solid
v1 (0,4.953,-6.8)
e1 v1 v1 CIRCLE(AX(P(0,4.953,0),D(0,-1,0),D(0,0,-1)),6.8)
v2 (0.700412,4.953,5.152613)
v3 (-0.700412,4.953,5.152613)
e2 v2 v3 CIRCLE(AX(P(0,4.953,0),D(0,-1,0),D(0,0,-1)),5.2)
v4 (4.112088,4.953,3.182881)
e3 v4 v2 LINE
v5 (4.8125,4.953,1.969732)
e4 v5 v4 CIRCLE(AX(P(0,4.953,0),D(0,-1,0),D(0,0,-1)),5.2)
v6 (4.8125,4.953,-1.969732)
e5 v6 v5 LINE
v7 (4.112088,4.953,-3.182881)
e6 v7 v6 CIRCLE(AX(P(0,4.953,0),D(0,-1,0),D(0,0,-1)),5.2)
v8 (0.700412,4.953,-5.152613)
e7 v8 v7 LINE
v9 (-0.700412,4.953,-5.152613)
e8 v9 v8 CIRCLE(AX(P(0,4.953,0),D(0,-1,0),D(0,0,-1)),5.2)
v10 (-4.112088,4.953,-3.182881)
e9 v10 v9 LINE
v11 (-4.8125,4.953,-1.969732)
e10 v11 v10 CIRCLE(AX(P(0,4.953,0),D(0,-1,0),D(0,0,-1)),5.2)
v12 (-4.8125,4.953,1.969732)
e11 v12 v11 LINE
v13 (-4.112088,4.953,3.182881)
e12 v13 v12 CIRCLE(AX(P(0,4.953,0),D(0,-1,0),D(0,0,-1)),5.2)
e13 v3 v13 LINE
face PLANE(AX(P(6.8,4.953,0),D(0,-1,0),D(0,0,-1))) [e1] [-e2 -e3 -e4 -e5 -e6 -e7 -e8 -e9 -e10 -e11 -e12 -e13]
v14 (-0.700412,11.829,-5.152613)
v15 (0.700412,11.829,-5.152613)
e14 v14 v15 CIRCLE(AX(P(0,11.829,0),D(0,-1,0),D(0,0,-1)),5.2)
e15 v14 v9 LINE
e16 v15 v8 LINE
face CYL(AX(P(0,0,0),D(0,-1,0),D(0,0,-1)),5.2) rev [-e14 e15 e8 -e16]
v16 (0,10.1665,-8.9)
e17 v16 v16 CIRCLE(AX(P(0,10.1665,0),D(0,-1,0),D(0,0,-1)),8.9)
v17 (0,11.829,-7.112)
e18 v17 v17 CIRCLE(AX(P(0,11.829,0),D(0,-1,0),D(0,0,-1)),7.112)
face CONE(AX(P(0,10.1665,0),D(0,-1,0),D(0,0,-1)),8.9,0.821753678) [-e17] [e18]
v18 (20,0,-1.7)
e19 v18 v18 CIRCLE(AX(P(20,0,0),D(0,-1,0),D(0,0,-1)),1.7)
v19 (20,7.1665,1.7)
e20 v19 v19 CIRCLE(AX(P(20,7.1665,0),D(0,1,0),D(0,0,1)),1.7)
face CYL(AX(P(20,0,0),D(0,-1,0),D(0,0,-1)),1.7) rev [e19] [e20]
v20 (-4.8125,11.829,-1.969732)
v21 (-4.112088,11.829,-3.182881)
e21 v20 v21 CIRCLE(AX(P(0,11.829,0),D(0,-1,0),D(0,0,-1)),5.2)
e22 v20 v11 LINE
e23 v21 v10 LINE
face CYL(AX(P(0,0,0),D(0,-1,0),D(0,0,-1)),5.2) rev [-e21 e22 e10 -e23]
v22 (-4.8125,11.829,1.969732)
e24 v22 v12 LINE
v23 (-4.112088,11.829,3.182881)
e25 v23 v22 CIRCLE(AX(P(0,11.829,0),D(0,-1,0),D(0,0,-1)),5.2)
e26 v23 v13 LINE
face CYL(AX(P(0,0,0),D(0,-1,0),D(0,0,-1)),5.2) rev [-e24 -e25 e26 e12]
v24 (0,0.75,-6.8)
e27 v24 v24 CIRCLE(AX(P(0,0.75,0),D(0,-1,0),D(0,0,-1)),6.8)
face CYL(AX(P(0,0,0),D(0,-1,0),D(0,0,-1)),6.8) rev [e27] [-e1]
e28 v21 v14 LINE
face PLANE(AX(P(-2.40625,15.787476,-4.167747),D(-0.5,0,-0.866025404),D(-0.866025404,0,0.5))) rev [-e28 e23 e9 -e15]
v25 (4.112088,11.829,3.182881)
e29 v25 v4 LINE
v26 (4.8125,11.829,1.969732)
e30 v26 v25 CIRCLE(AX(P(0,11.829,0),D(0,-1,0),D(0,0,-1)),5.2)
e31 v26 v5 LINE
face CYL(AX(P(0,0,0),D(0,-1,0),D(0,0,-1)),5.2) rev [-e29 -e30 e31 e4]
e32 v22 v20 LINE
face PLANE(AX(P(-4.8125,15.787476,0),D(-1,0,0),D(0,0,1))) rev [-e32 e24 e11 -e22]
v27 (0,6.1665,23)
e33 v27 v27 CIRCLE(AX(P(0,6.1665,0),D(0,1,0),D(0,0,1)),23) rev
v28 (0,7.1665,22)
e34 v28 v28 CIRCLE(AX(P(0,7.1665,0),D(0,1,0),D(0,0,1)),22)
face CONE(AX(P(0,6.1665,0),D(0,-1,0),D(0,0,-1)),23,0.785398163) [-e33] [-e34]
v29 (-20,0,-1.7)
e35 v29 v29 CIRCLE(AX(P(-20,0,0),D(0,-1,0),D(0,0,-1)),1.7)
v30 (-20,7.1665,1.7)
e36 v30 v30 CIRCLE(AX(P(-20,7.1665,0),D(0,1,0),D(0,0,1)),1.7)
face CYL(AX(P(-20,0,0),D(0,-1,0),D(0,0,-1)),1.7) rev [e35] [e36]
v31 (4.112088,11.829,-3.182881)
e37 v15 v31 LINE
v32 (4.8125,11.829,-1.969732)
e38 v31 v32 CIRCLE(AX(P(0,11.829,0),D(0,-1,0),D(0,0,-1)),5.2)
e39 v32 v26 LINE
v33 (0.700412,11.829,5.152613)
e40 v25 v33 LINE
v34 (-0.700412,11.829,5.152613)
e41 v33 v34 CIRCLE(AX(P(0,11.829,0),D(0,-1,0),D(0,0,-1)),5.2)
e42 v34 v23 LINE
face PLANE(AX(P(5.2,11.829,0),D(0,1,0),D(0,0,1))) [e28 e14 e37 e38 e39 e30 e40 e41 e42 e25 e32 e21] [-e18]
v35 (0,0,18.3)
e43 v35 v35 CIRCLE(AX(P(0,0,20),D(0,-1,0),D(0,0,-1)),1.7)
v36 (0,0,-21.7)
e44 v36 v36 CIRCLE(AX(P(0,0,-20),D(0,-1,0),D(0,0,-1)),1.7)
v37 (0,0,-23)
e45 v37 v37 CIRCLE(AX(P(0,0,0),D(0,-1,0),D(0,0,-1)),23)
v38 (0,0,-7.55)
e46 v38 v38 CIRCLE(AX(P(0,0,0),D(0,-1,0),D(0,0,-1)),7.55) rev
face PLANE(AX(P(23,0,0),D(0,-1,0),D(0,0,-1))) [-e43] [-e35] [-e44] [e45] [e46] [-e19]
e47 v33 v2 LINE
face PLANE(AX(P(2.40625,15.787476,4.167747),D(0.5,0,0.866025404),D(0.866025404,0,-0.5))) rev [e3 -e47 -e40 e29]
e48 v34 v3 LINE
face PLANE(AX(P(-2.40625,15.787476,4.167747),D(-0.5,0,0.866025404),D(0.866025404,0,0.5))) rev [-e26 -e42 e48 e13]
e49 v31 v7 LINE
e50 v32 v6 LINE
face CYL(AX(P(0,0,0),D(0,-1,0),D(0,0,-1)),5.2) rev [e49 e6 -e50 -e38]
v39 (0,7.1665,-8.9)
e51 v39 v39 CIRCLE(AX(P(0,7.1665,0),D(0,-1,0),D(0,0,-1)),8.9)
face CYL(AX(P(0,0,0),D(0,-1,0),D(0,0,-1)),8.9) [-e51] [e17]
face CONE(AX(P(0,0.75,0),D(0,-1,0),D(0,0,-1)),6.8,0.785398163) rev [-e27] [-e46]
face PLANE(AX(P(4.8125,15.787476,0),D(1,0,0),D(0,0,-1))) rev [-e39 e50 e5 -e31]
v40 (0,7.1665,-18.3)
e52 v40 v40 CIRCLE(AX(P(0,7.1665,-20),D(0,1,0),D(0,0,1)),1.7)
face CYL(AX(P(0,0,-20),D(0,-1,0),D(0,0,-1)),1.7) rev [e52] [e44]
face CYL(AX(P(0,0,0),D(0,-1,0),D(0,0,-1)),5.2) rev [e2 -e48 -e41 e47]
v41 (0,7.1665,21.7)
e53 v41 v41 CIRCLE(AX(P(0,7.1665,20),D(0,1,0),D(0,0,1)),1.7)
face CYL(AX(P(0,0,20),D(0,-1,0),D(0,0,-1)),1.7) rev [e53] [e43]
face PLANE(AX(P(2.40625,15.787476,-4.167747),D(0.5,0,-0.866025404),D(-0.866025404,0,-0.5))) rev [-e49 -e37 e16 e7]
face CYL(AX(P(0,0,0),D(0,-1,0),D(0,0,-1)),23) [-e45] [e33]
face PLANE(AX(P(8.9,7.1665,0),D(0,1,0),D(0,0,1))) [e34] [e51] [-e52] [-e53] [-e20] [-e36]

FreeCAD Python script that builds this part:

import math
import FreeCAD as App
import Part
import Sketcher
Q = App.Units.Quantity


def edges_at(feature, points):
    """Names of the edges that pass closest to the given points."""
    edges = feature.Shape.Edges
    near = lambda p: min(range(len(edges)), key=lambda i: edges[i].distToShape(Part.Vertex(*p))[0])
    return sorted({f"Edge{near(p) + 1}" for p in points})

doc = App.newDocument("Part")
body = doc.addObject("PartDesign::Body", "Body")

# Sketch on XY plane
sketch1 = doc.addObject("Sketcher::SketchObject", "Sketch")
body.addObject(sketch1)
sketch1.AttachmentSupport = (doc.XY_Plane, [""])
sketch1.MapMode = "FlatFace"
sketch1.addGeometry([
    Part.LineSegment(App.Vector(6.8, 4.953, 0), App.Vector(6.8, 0, 0)),  # 0
    Part.LineSegment(App.Vector(6.8, 0, 0), App.Vector(23, 0, 0)),  # 1
    Part.LineSegment(App.Vector(23, 0, 0), App.Vector(23, 7.1665, 0)),  # 2
    Part.LineSegment(App.Vector(23, 7.1665, 0), App.Vector(8.9, 7.1665, 0)),  # 3
    Part.LineSegment(App.Vector(8.9, 7.1665, 0), App.Vector(8.9, 10.1665, 0)),  # 4
    Part.LineSegment(App.Vector(8.9, 10.1665, 0), App.Vector(7.112, 11.829, 0)),  # 5
    Part.LineSegment(App.Vector(7.112, 11.829, 0), App.Vector(5.2, 11.829, 0)),  # 6
    Part.LineSegment(App.Vector(5.2, 11.829, 0), App.Vector(5.2, 4.953, 0)),  # 7
    Part.LineSegment(App.Vector(5.2, 4.953, 0), App.Vector(6.8, 4.953, 0)),  # 8
], False)
sketch1.addConstraint([
    Sketcher.Constraint("Coincident", 0, 2, 1, 1),
    Sketcher.Constraint("Coincident", 1, 2, 2, 1),
    Sketcher.Constraint("Coincident", 2, 2, 3, 1),
    Sketcher.Constraint("Coincident", 3, 2, 4, 1),
    Sketcher.Constraint("Coincident", 4, 2, 5, 1),
    Sketcher.Constraint("Coincident", 5, 2, 6, 1),
    Sketcher.Constraint("Coincident", 6, 2, 7, 1),
    Sketcher.Constraint("Coincident", 7, 2, 8, 1),
    Sketcher.Constraint("Coincident", 8, 2, 0, 1),
    Sketcher.Constraint("Vertical", 0),
    Sketcher.Constraint("Horizontal", 1),
    Sketcher.Constraint("Vertical", 2),
    Sketcher.Constraint("Horizontal", 3),
    Sketcher.Constraint("Vertical", 4),
    Sketcher.Constraint("Horizontal", 6),
    Sketcher.Constraint("Vertical", 7),
    Sketcher.Constraint("Horizontal", 8),
    Sketcher.Constraint("PointOnObject", 0, 2, -1),
    Sketcher.Constraint("DistanceY", 4, 1, 4, 2, Q("3 mm")),
    Sketcher.Constraint("DistanceX", 1, 1, 1, 2, Q("16.2 mm")),
    Sketcher.Constraint("DistanceX", 3, 2, 3, 1, Q("14.1 mm")),
    Sketcher.Constraint("DistanceX", 8, 1, 8, 2, Q("1.6 mm")),
    Sketcher.Constraint("DistanceX", -1, 1, 1, 2, Q("23 mm")),
    Sketcher.Constraint("DistanceX", 6, 2, 6, 1, Q("1.912 mm")),
    Sketcher.Constraint("DistanceY", 0, 2, 0, 1, Q("4.953 mm")),
    Sketcher.Constraint("DistanceY", 7, 2, 7, 1, Q("6.876 mm")),
    Sketcher.Constraint("DistanceY", 2, 1, 2, 2, Q("7.1665 mm")),
])
revolution = doc.addObject("PartDesign::Revolution", "Revolution")
body.addObject(revolution)
revolution.Profile = sketch1
revolution.ReferenceAxis = (sketch1, ["V_Axis"])
revolution.Angle = 360

# Sketch on XZ plane
sketch2 = doc.addObject("Sketcher::SketchObject", "Sketch001")
body.addObject(sketch2)
sketch2.AttachmentSupport = (doc.XZ_Plane, [""])
sketch2.MapMode = "FlatFace"
sketch2.addGeometry(Part.Circle(App.Vector(-20, 0, 0), App.Vector(0, 0, 1), 1.7), False)
sketch2.addConstraint([
    Sketcher.Constraint("PointOnObject", 0, 3, -1),
    Sketcher.Constraint("Diameter", 0, Q("3.4 mm")),
    Sketcher.Constraint("DistanceX", 0, 3, -1, 1, Q("20 mm")),
])
doc.recompute()
hole = doc.addObject("PartDesign::Hole", "Hole")
body.addObject(hole)
hole.Profile = sketch2
hole.ThreadType = "None"
hole.Diameter = 3.4
hole.DepthType = "ThroughAll"
doc.recompute()

polarpattern = doc.addObject("PartDesign::PolarPattern", "PolarPattern")
body.addObject(polarpattern)
polarpattern.Originals = [hole]
polarpattern.Axis = (doc.Y_Axis, [""])
polarpattern.Angle = 360
polarpattern.Occurrences = 4
body.Tip = polarpattern

# Sketch on XZ plane
sketch3 = doc.addObject("Sketcher::SketchObject", "Sketch002")
body.addObject(sketch3)
sketch3.AttachmentSupport = (doc.XZ_Plane, [""])
sketch3.MapMode = "FlatFace"
sketch3.AttachmentOffset = App.Placement(App.Vector(0, 0, -11.829), App.Rotation())
sketch3.addGeometry([
    Part.LineSegment(App.Vector(0.700412, 5.152613, 0), App.Vector(4.112088, 3.182881, 0)),  # 0
    Part.ArcOfCircle(Part.Circle(App.Vector(0, 0, 0), App.Vector(0, 0, 1), 5.2), math.radians(37.740963), math.radians(82.259037)),  # 1
    Part.ArcOfCircle(Part.Circle(App.Vector(0, 0, 0), App.Vector(0, 0, 1), 5.2), math.radians(-22.259037), math.radians(22.259037)),  # 2
    Part.LineSegment(App.Vector(4.8125, 1.969732, 0), App.Vector(4.8125, -1.969732, 0)),  # 3
    Part.LineSegment(App.Vector(-4.112088, 3.182881, 0), App.Vector(-0.700412, 5.152613, 0)),  # 4
    Part.ArcOfCircle(Part.Circle(App.Vector(0, 0, 0), App.Vector(0, 0, 1), 5.2), math.radians(97.740963), math.radians(142.259037)),  # 5
    Part.ArcOfCircle(Part.Circle(App.Vector(0, 0, 0), App.Vector(0, 0, 1), 5.2), math.radians(-82.259037), math.radians(-37.740963)),  # 6
    Part.LineSegment(App.Vector(4.112088, -3.182881, 0), App.Vector(0.700412, -5.152613, 0)),  # 7
    Part.LineSegment(App.Vector(-4.8125, -1.969732, 0), App.Vector(-4.8125, 1.969732, 0)),  # 8
    Part.ArcOfCircle(Part.Circle(App.Vector(0, 0, 0), App.Vector(0, 0, 1), 5.2), math.radians(157.740963), math.radians(202.259037)),  # 9
    Part.ArcOfCircle(Part.Circle(App.Vector(0, 0, 0), App.Vector(0, 0, 1), 5.2), math.radians(-142.259037), math.radians(-97.740963)),  # 10
    Part.LineSegment(App.Vector(-0.700412, -5.152613, 0), App.Vector(-4.112088, -3.182881, 0)),  # 11
], False)
sketch3.addConstraint([
    Sketcher.Constraint("Coincident", 0, 1, 1, 2),
    Sketcher.Constraint("Coincident", 1, 1, 0, 2),
    Sketcher.Constraint("Coincident", 2, 1, 3, 2),
    Sketcher.Constraint("Coincident", 3, 1, 2, 2),
    Sketcher.Constraint("Coincident", 4, 1, 5, 2),
    Sketcher.Constraint("Coincident", 5, 1, 4, 2),
    Sketcher.Constraint("Coincident", 6, 1, 7, 2),
    Sketcher.Constraint("Coincident", 7, 1, 6, 2),
    Sketcher.Constraint("Coincident", 8, 1, 9, 2),
    Sketcher.Constraint("Coincident", 9, 1, 8, 2),
    Sketcher.Constraint("Coincident", 10, 1, 11, 2),
    Sketcher.Constraint("Coincident", 11, 1, 10, 2),
    Sketcher.Constraint("Vertical", 3),
    Sketcher.Constraint("Vertical", 8),
    Sketcher.Constraint("Coincident", 1, 3, -1, 1),
    Sketcher.Constraint("Coincident", 2, 3, -1, 1),
    Sketcher.Constraint("Coincident", 5, 3, -1, 1),
    Sketcher.Constraint("Coincident", 6, 3, -1, 1),
    Sketcher.Constraint("Coincident", 9, 3, -1, 1),
    Sketcher.Constraint("Coincident", 10, 3, -1, 1),
    Sketcher.Constraint("Equal", 1, 2),
    Sketcher.Constraint("Equal", 2, 5),
    Sketcher.Constraint("Equal", 5, 6),
    Sketcher.Constraint("Equal", 6, 9),
    Sketcher.Constraint("Equal", 9, 10),
    Sketcher.Constraint("Parallel", 4, 7),
    Sketcher.Constraint("Parallel", 0, 11),
    Sketcher.Constraint("Horizontal", 1, 1, 4, 1),
    Sketcher.Constraint("Horizontal", 0, 1, 5, 1),
    Sketcher.Constraint("Horizontal", 2, 1, 8, 1),
    Sketcher.Constraint("Horizontal", 7, 1, 10, 1),
    Sketcher.Constraint("Vertical", 0, 1, 6, 1),
    Sketcher.Constraint("Radius", 1, Q("5.2 mm")),
    Sketcher.Constraint("Angle", 0, Q("-30 deg")),
    Sketcher.Constraint("DistanceX", -1, 1, 2, 1, Q("4.8125 mm")),
    Sketcher.Constraint("DistanceX", 4, 1, 0, 1, Q("4.8125 mm")),
])
pad1 = doc.addObject("PartDesign::Pad", "Pad")
body.addObject(pad1)
pad1.Profile = sketch3
pad1.Length = 6.876
doc.recompute()

chamfer = doc.addObject("PartDesign::Chamfer", "Chamfer")
body.addObject(chamfer)
chamfer.Base = (pad1, edges_at(pad1, [(0, 0, 6.8)]))
chamfer.Size = 0.75
doc.recompute()

chamfer2 = doc.addObject("PartDesign::Chamfer", "Chamfer001")
body.addObject(chamfer2)
chamfer2.Base = (chamfer, edges_at(chamfer, [(0, 7.167, 23)]))
chamfer2.Size = 1

doc.recompute()
